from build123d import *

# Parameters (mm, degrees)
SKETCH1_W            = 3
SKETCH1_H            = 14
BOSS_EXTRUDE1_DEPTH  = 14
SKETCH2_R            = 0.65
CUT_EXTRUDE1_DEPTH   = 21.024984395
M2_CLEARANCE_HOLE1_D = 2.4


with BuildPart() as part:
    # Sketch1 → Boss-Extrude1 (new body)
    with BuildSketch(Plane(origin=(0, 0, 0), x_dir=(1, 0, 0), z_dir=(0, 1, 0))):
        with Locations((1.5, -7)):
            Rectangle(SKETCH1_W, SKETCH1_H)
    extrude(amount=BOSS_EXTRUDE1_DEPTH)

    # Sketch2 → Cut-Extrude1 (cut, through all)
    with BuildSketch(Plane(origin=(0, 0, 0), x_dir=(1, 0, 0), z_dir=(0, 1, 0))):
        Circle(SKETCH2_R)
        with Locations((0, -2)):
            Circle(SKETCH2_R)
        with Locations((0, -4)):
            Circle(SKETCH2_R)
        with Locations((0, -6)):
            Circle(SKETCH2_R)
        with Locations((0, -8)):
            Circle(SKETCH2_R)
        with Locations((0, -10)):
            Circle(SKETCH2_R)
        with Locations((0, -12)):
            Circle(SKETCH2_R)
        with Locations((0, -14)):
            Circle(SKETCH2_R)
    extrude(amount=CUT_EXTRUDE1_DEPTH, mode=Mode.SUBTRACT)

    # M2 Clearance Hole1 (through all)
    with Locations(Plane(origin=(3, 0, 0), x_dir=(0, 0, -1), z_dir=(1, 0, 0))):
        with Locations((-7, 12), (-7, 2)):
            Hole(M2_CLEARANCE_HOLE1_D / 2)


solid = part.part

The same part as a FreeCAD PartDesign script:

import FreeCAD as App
import Part
import Sketcher

V = App.Vector
Q = App.Units.Quantity


def add_polygon(sketch, points):
    """Adds a closed chain of lines whose ends are joined by coincident constraints."""
    first, n = sketch.GeometryCount, len(points)
    for a, b in zip(points, points[1:] + points[:1]):
        sketch.addGeometry(Part.LineSegment(App.Vector(*a, 0), App.Vector(*b, 0)), False)
    for i in range(n):
        sketch.addConstraint(Sketcher.Constraint("Coincident", first + i, 2, first + (i + 1) % n, 1))

doc = App.newDocument("Part")
params = doc.addObject("Spreadsheet::Sheet", "Params")
for row, (alias, value) in enumerate([
    ("sketch1_width", "3 mm"),
    ("sketch1_height", "14 mm"),
    ("pad1_length", "14 mm"),
    ("sketch2_diameter", "1.3 mm"),
    ("sketch3_diameter", "2.4 mm"),
    ("hole_diameter", "2.4 mm"),
], start=1):
    params.set(f"A{row}", alias)
    params.set(f"B{row}", "=" + value)
    params.setAlias(f"B{row}", alias)

body = doc.addObject("PartDesign::Body", "Body")

sketch1 = body.newObject("Sketcher::SketchObject", "Sketch")
sketch1.AttachmentSupport = (doc.getObject("XZ_Plane"), [""])
sketch1.MapMode = "FlatFace"
add_polygon(sketch1, [(0, 0), (0, 14), (3, 14), (3, 0)])
sketch1.addConstraint(Sketcher.Constraint("Vertical", 0))
sketch1.addConstraint(Sketcher.Constraint("Horizontal", 1))
sketch1.addConstraint(Sketcher.Constraint("Vertical", 2))
sketch1.addConstraint(Sketcher.Constraint("Horizontal", 3))
sketch1.addConstraint(Sketcher.Constraint("Coincident", 3, 2, -1, 1))
sketch1.addConstraint(Sketcher.Constraint("DistanceX", 1, 1, 1, 2, Q("3 mm")))
sketch1.addConstraint(Sketcher.Constraint("DistanceY", 0, 1, 0, 2, Q("14 mm")))
sketch1.setExpression("Constraints[9]", "Params.sketch1_width")
sketch1.setExpression("Constraints[10]", "Params.sketch1_height")
pad1 = body.newObject("PartDesign::Pad", "Pad")
pad1.Profile = sketch1
pad1.setExpression("Length", "Params.pad1_length")
pad1.Reversed = True

sketch2 = body.newObject("Sketcher::SketchObject", "Sketch001")
sketch2.AttachmentSupport = (doc.getObject("XZ_Plane"), [""])
sketch2.MapMode = "FlatFace"
sketch2.addGeometry(Part.Circle(V(0, 0, 0), V(0, 0, 1), 0.7), False)
sketch2.addGeometry(Part.Circle(V(0, 2, 0), V(0, 0, 1), 0.7), False)
sketch2.addGeometry(Part.Circle(V(0, 4, 0), V(0, 0, 1), 0.7), False)
sketch2.addGeometry(Part.Circle(V(0, 6, 0), V(0, 0, 1), 0.7), False)
sketch2.addGeometry(Part.Circle(V(0, 8, 0), V(0, 0, 1), 0.7), False)
sketch2.addGeometry(Part.Circle(V(0, 10, 0), V(0, 0, 1), 0.7), False)
sketch2.addGeometry(Part.Circle(V(0, 12, 0), V(0, 0, 1), 0.7), False)
sketch2.addGeometry(Part.Circle(V(0, 14, 0), V(0, 0, 1), 0.7), False)
sketch2.addConstraint(Sketcher.Constraint("Coincident", 0, 3, -1, 1))
sketch2.addConstraint(Sketcher.Constraint("Equal", 0, 1))
sketch2.addConstraint(Sketcher.Constraint("Equal", 1, 2))
sketch2.addConstraint(Sketcher.Constraint("Equal", 2, 3))
sketch2.addConstraint(Sketcher.Constraint("Equal", 3, 4))
sketch2.addConstraint(Sketcher.Constraint("Equal", 4, 5))
sketch2.addConstraint(Sketcher.Constraint("Equal", 5, 6))
sketch2.addConstraint(Sketcher.Constraint("Equal", 6, 7))
sketch2.addConstraint(Sketcher.Constraint("PointOnObject", 1, 3, -2))
sketch2.addConstraint(Sketcher.Constraint("PointOnObject", 2, 3, -2))
sketch2.addConstraint(Sketcher.Constraint("PointOnObject", 3, 3, -2))
sketch2.addConstraint(Sketcher.Constraint("PointOnObject", 4, 3, -2))
sketch2.addConstraint(Sketcher.Constraint("PointOnObject", 5, 3, -2))
sketch2.addConstraint(Sketcher.Constraint("PointOnObject", 6, 3, -2))
sketch2.addConstraint(Sketcher.Constraint("PointOnObject", 7, 3, -2))
sketch2.addConstraint(Sketcher.Constraint("Diameter", 0, Q("1.3 mm")))
sketch2.addConstraint(Sketcher.Constraint("DistanceY", -1, 1, 1, 3, Q("2 mm")))
sketch2.addConstraint(Sketcher.Constraint("DistanceY", -1, 1, 2, 3, Q("4 mm")))
sketch2.addConstraint(Sketcher.Constraint("DistanceY", -1, 1, 3, 3, Q("6 mm")))
sketch2.addConstraint(Sketcher.Constraint("DistanceY", -1, 1, 4, 3, Q("8 mm")))
sketch2.addConstraint(Sketcher.Constraint("DistanceY", -1, 1, 5, 3, Q("10 mm")))
sketch2.addConstraint(Sketcher.Constraint("DistanceY", -1, 1, 6, 3, Q("12 mm")))
sketch2.addConstraint(Sketcher.Constraint("DistanceY", -1, 1, 7, 3, Q("14 mm")))
sketch2.setExpression("Constraints[15]", "Params.sketch2_diameter")
pocket1 = body.newObject("PartDesign::Pocket", "Pocket")
pocket1.Profile = sketch2
pocket1.Type = "ThroughAll"

sketch3 = body.newObject("Sketcher::SketchObject", "Sketch002")
sketch3.AttachmentSupport = (doc.getObject("YZ_Plane"), [""])
sketch3.MapMode = "FlatFace"
sketch3.AttachmentOffset = App.Placement(V(0, 0, 3), App.Rotation())
sketch3.addGeometry(Part.Circle(V(12, 7, 0), V(0, 0, 1), 1.2), False)
sketch3.addGeometry(Part.Circle(V(2, 7, 0), V(0, 0, 1), 1.2), False)
sketch3.addConstraint(Sketcher.Constraint("Equal", 0, 1))
sketch3.addConstraint(Sketcher.Constraint("Horizontal", 0, 3, 1, 3))
sketch3.addConstraint(Sketcher.Constraint("Diameter", 0, Q("2.4 mm")))
sketch3.addConstraint(Sketcher.Constraint("DistanceX", -1, 1, 0, 3, Q("12 mm")))
sketch3.addConstraint(Sketcher.Constraint("DistanceY", -1, 1, 0, 3, Q("7 mm")))
sketch3.addConstraint(Sketcher.Constraint("DistanceX", -1, 1, 1, 3, Q("2 mm")))
sketch3.setExpression("Constraints[2]", "Params.sketch3_diameter")
doc.recompute()
hole = body.newObject("PartDesign::Hole", "Hole")
hole.Profile = sketch3
hole.ThreadType = "None"
hole.setExpression("Diameter", "Params.hole_diameter")
hole.DepthType = "ThroughAll"

doc.recompute()
